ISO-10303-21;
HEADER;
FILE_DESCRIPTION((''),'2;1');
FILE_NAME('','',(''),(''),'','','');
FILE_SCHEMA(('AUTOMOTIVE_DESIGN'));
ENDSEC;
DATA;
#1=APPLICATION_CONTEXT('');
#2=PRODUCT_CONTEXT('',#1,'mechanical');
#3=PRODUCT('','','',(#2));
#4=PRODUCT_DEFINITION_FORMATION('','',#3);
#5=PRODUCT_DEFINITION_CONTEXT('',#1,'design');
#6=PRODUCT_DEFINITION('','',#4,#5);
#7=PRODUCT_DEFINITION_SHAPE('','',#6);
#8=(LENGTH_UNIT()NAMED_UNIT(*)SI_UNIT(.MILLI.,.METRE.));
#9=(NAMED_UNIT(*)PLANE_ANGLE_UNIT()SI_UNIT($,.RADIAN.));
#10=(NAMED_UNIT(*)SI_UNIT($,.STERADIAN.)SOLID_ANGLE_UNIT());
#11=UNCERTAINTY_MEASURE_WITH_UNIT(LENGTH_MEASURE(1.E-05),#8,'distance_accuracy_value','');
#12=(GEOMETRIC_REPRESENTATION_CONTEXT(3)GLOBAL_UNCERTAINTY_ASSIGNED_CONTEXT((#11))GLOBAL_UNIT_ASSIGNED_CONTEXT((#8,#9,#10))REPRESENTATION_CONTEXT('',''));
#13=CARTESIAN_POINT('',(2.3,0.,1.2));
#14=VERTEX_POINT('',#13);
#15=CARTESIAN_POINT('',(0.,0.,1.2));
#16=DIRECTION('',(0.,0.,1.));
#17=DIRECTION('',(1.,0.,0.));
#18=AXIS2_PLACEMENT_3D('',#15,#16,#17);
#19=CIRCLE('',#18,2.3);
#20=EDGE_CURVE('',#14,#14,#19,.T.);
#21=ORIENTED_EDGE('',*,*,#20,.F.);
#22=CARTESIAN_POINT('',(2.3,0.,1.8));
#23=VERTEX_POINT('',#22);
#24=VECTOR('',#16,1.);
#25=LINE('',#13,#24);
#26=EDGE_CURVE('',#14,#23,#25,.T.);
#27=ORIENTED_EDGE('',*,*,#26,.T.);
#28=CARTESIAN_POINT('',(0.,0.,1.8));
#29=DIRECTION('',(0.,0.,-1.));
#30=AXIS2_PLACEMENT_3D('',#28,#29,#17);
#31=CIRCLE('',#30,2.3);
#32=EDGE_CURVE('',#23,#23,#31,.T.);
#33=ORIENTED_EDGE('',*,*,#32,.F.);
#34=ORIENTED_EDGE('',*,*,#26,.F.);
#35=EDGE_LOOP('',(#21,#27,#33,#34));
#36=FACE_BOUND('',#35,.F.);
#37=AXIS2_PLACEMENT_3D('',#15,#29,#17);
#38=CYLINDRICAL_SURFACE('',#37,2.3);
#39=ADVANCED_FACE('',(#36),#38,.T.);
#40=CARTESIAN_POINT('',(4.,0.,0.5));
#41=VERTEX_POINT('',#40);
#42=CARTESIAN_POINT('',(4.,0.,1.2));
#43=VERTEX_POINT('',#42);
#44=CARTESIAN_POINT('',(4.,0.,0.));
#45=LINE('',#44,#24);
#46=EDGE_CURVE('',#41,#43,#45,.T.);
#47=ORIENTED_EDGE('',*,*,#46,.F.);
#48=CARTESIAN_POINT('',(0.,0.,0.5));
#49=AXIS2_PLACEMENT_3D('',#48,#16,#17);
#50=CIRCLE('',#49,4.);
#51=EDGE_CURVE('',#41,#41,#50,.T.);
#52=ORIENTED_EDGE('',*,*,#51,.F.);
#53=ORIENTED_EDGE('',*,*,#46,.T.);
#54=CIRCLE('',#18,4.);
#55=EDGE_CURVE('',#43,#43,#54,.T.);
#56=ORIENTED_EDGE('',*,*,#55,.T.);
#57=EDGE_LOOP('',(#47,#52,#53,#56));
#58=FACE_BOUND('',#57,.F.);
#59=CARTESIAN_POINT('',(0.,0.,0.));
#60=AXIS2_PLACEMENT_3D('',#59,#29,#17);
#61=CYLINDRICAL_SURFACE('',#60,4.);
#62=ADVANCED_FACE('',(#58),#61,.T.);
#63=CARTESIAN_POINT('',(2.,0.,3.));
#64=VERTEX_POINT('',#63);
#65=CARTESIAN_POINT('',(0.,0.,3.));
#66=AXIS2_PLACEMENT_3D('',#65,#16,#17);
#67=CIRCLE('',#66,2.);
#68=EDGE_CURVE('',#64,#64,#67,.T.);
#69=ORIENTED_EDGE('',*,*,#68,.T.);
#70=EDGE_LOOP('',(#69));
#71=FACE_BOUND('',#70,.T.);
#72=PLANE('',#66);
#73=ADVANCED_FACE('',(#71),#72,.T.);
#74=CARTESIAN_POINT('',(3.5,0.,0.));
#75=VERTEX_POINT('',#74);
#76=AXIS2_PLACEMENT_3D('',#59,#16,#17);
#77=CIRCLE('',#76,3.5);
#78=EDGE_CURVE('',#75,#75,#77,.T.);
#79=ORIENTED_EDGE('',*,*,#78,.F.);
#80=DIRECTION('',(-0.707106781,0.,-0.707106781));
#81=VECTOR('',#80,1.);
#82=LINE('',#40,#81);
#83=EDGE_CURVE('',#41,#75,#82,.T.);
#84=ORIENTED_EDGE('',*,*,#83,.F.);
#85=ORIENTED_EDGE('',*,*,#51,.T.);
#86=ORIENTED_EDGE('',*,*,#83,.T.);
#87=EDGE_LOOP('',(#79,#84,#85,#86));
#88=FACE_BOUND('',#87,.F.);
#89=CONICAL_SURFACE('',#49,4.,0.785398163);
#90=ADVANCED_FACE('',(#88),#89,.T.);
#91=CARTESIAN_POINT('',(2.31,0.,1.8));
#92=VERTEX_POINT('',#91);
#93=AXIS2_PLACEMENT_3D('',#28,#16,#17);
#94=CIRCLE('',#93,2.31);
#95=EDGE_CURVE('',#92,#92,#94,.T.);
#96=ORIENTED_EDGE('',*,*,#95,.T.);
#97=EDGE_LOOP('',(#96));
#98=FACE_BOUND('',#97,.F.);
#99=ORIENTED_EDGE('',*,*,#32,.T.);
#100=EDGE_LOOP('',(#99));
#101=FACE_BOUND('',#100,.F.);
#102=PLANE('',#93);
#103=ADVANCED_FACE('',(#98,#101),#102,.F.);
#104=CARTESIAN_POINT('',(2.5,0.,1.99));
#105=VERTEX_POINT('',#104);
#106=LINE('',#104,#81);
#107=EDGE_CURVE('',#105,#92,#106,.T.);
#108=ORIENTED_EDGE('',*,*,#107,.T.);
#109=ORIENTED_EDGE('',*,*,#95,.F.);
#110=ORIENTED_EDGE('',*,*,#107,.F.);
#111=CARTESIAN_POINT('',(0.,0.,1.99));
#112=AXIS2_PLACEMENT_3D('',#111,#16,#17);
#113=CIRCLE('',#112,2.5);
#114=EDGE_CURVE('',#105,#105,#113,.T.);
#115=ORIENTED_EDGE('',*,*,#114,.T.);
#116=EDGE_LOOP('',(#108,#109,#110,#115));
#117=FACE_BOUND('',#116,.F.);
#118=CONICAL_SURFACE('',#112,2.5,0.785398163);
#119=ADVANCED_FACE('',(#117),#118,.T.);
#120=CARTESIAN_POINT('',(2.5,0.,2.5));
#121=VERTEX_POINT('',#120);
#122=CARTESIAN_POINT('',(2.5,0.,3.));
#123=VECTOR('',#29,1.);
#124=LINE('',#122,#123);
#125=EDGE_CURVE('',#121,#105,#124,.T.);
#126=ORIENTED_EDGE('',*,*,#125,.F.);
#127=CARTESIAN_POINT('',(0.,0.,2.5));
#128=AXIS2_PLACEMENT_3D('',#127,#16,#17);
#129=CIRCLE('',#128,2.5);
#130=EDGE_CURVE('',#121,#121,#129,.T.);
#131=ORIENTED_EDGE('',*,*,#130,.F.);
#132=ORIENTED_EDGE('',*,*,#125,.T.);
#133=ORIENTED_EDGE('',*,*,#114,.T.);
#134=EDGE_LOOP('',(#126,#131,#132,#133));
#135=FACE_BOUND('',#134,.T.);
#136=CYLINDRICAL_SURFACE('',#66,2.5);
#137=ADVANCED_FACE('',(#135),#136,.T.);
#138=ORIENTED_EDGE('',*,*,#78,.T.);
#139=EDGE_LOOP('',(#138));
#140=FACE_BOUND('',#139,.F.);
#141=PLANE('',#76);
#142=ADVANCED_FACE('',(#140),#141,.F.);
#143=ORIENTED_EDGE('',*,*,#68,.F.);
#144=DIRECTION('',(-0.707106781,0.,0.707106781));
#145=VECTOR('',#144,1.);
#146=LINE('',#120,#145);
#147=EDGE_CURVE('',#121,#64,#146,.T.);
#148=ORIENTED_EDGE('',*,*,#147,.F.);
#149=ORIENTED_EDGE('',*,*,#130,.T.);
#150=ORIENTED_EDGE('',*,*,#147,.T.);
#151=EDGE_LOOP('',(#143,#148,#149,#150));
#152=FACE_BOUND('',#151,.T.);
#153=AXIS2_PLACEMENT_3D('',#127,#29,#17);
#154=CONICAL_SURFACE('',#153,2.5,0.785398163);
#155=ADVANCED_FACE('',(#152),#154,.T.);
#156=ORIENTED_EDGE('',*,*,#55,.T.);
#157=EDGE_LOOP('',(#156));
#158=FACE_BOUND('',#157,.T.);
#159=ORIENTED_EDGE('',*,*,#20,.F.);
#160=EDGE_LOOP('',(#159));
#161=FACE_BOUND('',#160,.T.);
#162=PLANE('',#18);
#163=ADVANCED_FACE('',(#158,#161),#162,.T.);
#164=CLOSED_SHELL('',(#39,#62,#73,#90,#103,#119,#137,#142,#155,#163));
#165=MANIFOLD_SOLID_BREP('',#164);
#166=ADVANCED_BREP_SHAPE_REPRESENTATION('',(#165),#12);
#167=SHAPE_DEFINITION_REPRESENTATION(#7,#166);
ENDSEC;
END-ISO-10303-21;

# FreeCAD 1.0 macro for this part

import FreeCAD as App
import Part
import Sketcher

V = App.Vector


def edges_at(feature, points):
    """Names of the edges that pass closest to the given points."""
    edges = feature.Shape.Edges
    near = lambda p: min(range(len(edges)), key=lambda i: edges[i].distToShape(Part.Vertex(*p))[0])
    return sorted({f"Edge{near(p) + 1}" for p in points})

doc = App.newDocument("Part")
body = doc.addObject("PartDesign::Body", "Body")

sketch1 = body.newObject("Sketcher::SketchObject", "Sketch")
sketch1.AttachmentSupport = (doc.getObject("XY_Plane"), [""])
sketch1.MapMode = "FlatFace"
sketch1.addGeometry(Part.Circle(V(0, 0, 0), V(0, 0, 1), 4), False)
sketch1.addConstraint(Sketcher.Constraint("Coincident", 0, 3, -1, 1))
sketch1.addConstraint(Sketcher.Constraint("Diameter", 0, 8.0))
pad1 = body.newObject("PartDesign::Pad", "Pad")
pad1.Profile = sketch1
pad1.Length = 1.2

sketch2 = body.newObject("Sketcher::SketchObject", "Sketch001")
sketch2.AttachmentSupport = (doc.getObject("XY_Plane"), [""])
sketch2.MapMode = "FlatFace"
sketch2.AttachmentOffset = App.Placement(V(0, 0, 1.2), App.Rotation())
sketch2.addGeometry(Part.Circle(V(0, 0, 0), V(0, 0, 1), 2.3), False)
sketch2.addConstraint(Sketcher.Constraint("Coincident", 0, 3, -1, 1))
sketch2.addConstraint(Sketcher.Constraint("Diameter", 0, 4.6))
pad2 = body.newObject("PartDesign::Pad", "Pad001")
pad2.Profile = sketch2
pad2.Length = 1.8

sketch3 = body.newObject("Sketcher::SketchObject", "Sketch002")
sketch3.AttachmentSupport = (doc.getObject("XY_Plane"), [""])
sketch3.MapMode = "FlatFace"
sketch3.AttachmentOffset = App.Placement(V(0, 0, 3), App.Rotation())
sketch3.addGeometry(Part.Circle(V(0, 0, 0), V(0, 0, 1), 2.5), False)
sketch3.addConstraint(Sketcher.Constraint("Coincident", 0, 3, -1, 1))
sketch3.addConstraint(Sketcher.Constraint("Diameter", 0, 5.0))
pad3 = body.newObject("PartDesign::Pad", "Pad002")
pad3.Profile = sketch3
pad3.Length = 1.2
pad3.Reversed = True
doc.recompute()

chamfer = body.newObject("PartDesign::Chamfer", "Chamfer")
chamfer.Base = (pad3, edges_at(pad3, [(-2.5, 0, 3), (-4, 0, 0)]))
chamfer.Size = 0.5
doc.recompute()

chamfer2 = body.newObject("PartDesign::Chamfer", "Chamfer001")
chamfer2.Base = (chamfer, edges_at(chamfer, [(-2.5, 0, 1.8)]))
chamfer2.Size = 0.19

doc.recompute()
